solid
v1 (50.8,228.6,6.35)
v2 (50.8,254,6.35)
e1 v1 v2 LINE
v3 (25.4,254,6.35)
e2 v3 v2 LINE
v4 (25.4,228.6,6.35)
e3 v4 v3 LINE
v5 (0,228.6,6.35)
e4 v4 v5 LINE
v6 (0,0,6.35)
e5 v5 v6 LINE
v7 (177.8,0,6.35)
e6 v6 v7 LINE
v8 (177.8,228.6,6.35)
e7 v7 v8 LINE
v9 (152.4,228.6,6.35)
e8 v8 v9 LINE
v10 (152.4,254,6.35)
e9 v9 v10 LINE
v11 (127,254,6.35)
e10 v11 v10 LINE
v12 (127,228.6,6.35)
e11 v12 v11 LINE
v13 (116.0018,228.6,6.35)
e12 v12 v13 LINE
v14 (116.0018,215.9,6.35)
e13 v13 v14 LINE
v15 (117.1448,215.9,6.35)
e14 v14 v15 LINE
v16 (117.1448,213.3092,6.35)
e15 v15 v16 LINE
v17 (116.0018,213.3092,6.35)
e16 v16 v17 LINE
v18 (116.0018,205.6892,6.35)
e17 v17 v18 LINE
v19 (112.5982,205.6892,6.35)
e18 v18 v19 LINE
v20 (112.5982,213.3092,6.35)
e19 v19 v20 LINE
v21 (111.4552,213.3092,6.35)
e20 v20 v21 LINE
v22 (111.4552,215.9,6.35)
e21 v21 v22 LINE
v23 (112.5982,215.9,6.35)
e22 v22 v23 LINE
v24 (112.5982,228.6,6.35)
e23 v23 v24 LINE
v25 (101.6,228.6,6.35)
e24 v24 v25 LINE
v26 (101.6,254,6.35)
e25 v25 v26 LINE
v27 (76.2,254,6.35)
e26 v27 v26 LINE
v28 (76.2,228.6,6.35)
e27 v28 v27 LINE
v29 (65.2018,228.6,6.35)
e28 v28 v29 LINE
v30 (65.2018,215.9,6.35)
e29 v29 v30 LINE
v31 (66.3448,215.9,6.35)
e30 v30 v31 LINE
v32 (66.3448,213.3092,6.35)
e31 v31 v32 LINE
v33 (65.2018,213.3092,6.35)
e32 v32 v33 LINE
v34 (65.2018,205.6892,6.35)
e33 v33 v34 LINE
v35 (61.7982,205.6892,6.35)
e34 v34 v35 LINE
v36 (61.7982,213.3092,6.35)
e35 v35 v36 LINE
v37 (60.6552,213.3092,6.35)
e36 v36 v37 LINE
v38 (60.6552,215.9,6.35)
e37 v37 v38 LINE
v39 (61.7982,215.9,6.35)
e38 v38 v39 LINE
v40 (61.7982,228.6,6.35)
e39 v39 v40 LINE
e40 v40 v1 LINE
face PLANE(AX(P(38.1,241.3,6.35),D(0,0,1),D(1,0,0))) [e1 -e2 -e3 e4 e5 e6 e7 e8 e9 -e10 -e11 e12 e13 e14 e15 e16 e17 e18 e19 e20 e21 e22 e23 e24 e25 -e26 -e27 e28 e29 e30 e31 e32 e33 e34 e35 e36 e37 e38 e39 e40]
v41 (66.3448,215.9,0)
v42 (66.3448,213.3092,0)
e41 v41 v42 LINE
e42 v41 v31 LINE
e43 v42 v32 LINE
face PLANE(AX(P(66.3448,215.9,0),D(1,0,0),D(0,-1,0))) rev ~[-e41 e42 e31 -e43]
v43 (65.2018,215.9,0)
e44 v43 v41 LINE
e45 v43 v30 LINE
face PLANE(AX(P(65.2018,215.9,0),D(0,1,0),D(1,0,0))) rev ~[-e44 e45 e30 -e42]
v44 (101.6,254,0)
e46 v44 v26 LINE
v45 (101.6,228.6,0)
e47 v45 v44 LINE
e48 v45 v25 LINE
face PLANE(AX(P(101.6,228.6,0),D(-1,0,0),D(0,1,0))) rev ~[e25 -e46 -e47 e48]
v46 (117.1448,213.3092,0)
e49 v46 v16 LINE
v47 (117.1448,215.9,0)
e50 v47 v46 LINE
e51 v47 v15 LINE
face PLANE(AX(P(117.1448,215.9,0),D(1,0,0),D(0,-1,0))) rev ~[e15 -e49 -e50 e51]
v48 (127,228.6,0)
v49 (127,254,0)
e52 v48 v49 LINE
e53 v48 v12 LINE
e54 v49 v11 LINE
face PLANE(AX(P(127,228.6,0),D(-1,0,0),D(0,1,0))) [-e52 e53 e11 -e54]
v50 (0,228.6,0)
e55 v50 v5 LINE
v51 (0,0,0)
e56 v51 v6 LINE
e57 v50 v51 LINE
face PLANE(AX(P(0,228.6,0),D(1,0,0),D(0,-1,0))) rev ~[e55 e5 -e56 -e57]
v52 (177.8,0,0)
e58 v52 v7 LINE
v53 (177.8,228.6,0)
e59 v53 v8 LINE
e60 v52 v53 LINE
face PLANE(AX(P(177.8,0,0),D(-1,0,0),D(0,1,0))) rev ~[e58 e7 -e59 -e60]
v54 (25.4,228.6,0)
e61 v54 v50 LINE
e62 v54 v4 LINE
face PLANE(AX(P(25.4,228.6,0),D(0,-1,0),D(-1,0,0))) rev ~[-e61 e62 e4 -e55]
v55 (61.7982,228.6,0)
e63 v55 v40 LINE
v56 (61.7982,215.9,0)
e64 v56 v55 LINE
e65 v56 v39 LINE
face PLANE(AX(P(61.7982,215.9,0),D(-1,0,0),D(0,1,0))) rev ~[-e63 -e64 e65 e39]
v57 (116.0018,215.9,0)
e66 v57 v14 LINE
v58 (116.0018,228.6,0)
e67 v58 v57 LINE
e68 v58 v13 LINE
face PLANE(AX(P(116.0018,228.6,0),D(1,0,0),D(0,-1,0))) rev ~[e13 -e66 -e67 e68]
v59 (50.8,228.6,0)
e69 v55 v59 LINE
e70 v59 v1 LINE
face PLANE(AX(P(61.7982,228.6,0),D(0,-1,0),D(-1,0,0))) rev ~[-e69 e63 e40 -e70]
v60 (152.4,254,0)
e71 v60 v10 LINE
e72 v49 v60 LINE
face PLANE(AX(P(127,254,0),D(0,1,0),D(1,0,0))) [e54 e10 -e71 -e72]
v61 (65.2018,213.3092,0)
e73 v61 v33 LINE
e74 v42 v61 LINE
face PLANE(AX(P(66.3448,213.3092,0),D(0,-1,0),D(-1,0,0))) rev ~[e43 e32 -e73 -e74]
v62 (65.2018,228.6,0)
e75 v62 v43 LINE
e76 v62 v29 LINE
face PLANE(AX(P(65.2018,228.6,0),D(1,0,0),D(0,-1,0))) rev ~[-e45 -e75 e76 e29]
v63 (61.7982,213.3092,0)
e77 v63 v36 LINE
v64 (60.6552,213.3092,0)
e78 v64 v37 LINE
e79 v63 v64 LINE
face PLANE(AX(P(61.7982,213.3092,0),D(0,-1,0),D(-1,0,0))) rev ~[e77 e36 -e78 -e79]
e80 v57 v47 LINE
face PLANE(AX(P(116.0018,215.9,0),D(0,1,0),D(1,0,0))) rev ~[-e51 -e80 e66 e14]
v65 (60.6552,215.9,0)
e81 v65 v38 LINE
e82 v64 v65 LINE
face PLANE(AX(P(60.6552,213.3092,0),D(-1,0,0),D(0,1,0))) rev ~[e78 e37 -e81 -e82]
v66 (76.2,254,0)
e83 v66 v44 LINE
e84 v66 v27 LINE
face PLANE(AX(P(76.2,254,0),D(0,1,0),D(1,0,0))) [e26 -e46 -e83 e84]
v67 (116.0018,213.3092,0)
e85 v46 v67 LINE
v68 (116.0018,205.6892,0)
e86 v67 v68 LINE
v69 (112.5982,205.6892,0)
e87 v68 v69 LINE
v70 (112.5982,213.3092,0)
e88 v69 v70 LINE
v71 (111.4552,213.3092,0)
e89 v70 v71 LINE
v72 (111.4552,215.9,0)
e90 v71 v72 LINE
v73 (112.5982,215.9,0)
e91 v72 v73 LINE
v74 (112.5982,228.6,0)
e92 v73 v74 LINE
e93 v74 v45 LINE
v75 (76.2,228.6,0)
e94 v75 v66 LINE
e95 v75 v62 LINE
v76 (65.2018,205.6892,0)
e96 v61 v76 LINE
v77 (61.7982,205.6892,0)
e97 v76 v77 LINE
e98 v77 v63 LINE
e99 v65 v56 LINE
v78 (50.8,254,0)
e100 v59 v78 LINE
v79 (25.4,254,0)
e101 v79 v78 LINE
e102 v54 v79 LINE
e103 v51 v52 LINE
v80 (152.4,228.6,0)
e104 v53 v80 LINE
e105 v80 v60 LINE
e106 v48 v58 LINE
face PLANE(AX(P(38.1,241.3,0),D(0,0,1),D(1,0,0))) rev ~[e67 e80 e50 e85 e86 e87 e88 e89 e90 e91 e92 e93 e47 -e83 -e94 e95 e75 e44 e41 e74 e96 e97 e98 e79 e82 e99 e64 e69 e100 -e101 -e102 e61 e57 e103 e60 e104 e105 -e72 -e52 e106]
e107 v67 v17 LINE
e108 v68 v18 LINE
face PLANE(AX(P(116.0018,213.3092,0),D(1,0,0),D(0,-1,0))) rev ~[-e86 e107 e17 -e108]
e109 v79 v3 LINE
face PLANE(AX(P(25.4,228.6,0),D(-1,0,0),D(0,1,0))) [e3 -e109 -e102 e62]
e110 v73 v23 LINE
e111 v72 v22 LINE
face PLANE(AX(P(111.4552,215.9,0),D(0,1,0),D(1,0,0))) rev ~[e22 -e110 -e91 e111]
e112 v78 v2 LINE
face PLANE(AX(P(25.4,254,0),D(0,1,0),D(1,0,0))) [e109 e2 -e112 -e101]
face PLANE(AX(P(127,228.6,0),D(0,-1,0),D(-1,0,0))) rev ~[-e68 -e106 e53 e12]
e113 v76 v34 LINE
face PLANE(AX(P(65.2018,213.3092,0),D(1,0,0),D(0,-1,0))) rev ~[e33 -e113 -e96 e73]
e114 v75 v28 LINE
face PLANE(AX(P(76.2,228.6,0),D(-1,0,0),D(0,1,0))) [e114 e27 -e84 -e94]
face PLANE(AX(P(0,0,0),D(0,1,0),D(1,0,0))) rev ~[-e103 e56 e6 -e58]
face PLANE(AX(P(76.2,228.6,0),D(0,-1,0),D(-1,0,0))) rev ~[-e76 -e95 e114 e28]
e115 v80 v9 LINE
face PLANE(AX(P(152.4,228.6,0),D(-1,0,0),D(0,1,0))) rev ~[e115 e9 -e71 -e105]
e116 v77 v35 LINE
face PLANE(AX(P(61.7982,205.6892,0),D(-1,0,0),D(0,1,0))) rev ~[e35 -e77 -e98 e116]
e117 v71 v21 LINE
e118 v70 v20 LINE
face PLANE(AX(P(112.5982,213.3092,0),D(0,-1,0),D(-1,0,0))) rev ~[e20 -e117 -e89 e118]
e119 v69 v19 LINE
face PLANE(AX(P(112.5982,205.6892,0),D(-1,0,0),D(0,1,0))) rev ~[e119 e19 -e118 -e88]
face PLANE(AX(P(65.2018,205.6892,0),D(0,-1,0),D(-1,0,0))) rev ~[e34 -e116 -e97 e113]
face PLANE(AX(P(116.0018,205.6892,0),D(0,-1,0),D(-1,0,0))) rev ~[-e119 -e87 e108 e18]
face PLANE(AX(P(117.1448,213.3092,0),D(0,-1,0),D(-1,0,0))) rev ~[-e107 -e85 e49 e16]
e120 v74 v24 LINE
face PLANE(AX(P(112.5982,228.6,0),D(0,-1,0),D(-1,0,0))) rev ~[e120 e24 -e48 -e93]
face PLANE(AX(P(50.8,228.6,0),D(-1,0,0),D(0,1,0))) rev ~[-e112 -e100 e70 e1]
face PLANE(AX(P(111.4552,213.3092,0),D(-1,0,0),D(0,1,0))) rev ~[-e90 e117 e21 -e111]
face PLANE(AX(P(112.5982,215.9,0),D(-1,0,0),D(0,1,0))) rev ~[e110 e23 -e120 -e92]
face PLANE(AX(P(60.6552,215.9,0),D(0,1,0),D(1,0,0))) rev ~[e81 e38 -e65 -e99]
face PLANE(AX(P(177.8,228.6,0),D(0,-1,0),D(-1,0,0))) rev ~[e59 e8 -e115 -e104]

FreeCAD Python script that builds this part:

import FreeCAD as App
import Part
import Sketcher

V = App.Vector
Q = App.Units.Quantity


def add_polygon(sketch, points):
    """Adds a closed chain of lines whose ends are joined by coincident constraints."""
    first, n = sketch.GeometryCount, len(points)
    for a, b in zip(points, points[1:] + points[:1]):
        sketch.addGeometry(Part.LineSegment(App.Vector(*a, 0), App.Vector(*b, 0)), False)
    for i in range(n):
        sketch.addConstraint(Sketcher.Constraint("Coincident", first + i, 2, first + (i + 1) % n, 1))

doc = App.newDocument("Part")
body = doc.addObject("PartDesign::Body", "Body")

# Sketch on XY plane
sketch1 = doc.addObject("Sketcher::SketchObject", "Sketch")
body.addObject(sketch1)
sketch1.AttachmentSupport = (doc.XY_Plane, [""])
sketch1.MapMode = "FlatFace"
add_polygon(sketch1, [(25.4, 254), (25.4, 228.6), (0, 228.6), (0, 0), (177.8, 0), (177.8, 228.6), (152.4, 228.6), (152.4, 254), (127, 254), (127, 228.6), (116, 228.6), (116, 215.9), (117.1, 215.9), (117.1, 213.3), (116, 213.3), (116, 205.7), (112.6, 205.7), (112.6, 213.3), (111.5, 213.3), (111.5, 215.9), (112.6, 215.9), (112.6, 228.6), (101.6, 228.6), (101.6, 254), (76.2, 254), (76.2, 228.6), (65.2, 228.6), (65.2, 215.9), (66.3, 215.9), (66.3, 213.3), (65.2, 213.3), (65.2, 205.7), (61.8, 205.7), (61.8, 213.3), (60.7, 213.3), (60.7, 215.9), (61.8, 215.9), (61.8, 228.6), (50.8, 228.6), (50.8, 254)])  # lines 0-39
sketch1.addConstraint([
    Sketcher.Constraint("Vertical", 0),
    Sketcher.Constraint("Horizontal", 1),
    Sketcher.Constraint("Vertical", 2),
    Sketcher.Constraint("Horizontal", 3),
    Sketcher.Constraint("Vertical", 4),
    Sketcher.Constraint("Horizontal", 5),
    Sketcher.Constraint("Vertical", 6),
    Sketcher.Constraint("Horizontal", 7),
    Sketcher.Constraint("Vertical", 8),
    Sketcher.Constraint("Horizontal", 9),
    Sketcher.Constraint("Vertical", 10),
    Sketcher.Constraint("Horizontal", 11),
    Sketcher.Constraint("Vertical", 12),
    Sketcher.Constraint("Horizontal", 13),
    Sketcher.Constraint("Vertical", 14),
    Sketcher.Constraint("Horizontal", 15),
    Sketcher.Constraint("Vertical", 16),
    Sketcher.Constraint("Horizontal", 17),
    Sketcher.Constraint("Vertical", 18),
    Sketcher.Constraint("Horizontal", 19),
    Sketcher.Constraint("Vertical", 20),
    Sketcher.Constraint("Horizontal", 21),
    Sketcher.Constraint("Vertical", 22),
    Sketcher.Constraint("Horizontal", 23),
    Sketcher.Constraint("Vertical", 24),
    Sketcher.Constraint("Horizontal", 25),
    Sketcher.Constraint("Vertical", 26),
    Sketcher.Constraint("Horizontal", 27),
    Sketcher.Constraint("Vertical", 28),
    Sketcher.Constraint("Horizontal", 29),
    Sketcher.Constraint("Vertical", 30),
    Sketcher.Constraint("Horizontal", 31),
    Sketcher.Constraint("Vertical", 32),
    Sketcher.Constraint("Horizontal", 33),
    Sketcher.Constraint("Vertical", 34),
    Sketcher.Constraint("Horizontal", 35),
    Sketcher.Constraint("Vertical", 36),
    Sketcher.Constraint("Horizontal", 37),
    Sketcher.Constraint("Vertical", 38),
    Sketcher.Constraint("Horizontal", 39),
    Sketcher.Constraint("Coincident", 2, 2, -1, 1),
    Sketcher.Constraint("Horizontal", 1, 2, 4, 2),
    Sketcher.Constraint("Horizontal", 5, 2, 8, 2),
    Sketcher.Constraint("Horizontal", 13, 2, 16, 2),
    Sketcher.Constraint("Horizontal", 11, 2, 18, 2),
    Sketcher.Constraint("Horizontal", 9, 2, 20, 2),
    Sketcher.Constraint("Horizontal", 7, 2, 22, 2),
    Sketcher.Constraint("Horizontal", 21, 2, 24, 2),
    Sketcher.Constraint("Horizontal", 19, 2, 26, 2),
    Sketcher.Constraint("Horizontal", 17, 2, 28, 2),
    Sketcher.Constraint("Horizontal", 15, 2, 30, 2),
    Sketcher.Constraint("Horizontal", 29, 2, 32, 2),
    Sketcher.Constraint("Horizontal", 27, 2, 34, 2),
    Sketcher.Constraint("Horizontal", 25, 2, 36, 2),
    Sketcher.Constraint("Horizontal", 23, 2, 38, 2),
    Sketcher.Constraint("Vertical", 10, 2, 13, 2),
    Sketcher.Constraint("Vertical", 16, 2, 19, 2),
    Sketcher.Constraint("Vertical", 26, 2, 29, 2),
    Sketcher.Constraint("Vertical", 32, 2, 35, 2),
    Sketcher.Constraint("Equal", 1, 5),
    Sketcher.Constraint("Equal", 5, 7),
    Sketcher.Constraint("Equal", 13, 17),
    Sketcher.Constraint("Equal", 9, 21),
    Sketcher.Constraint("Equal", 7, 23),
    Sketcher.Constraint("Equal", 21, 25),
    Sketcher.Constraint("Equal", 19, 27),
    Sketcher.Constraint("Equal", 15, 31),
    Sketcher.Constraint("Equal", 29, 33),
    Sketcher.Constraint("Equal", 25, 37),
    Sketcher.Constraint("Equal", 23, 39),
    Sketcher.Constraint("Equal", 39, 0),
    Sketcher.Constraint("DistanceX", 1, 2, 1, 1, Q("1 in")),
    Sketcher.Constraint("DistanceX", 3, 1, 3, 2, Q("7 in")),
    Sketcher.Constraint("DistanceY", 2, 2, 2, 1, Q("9 in")),
    Sketcher.Constraint("DistanceY", 10, 2, 10, 1, Q("0.5 in")),
    Sketcher.Constraint("DistanceY", 14, 2, 14, 1, Q("0.3 in")),
    Sketcher.Constraint("DistanceX", 9, 2, 9, 1, Q("0.433 in")),
    Sketcher.Constraint("DistanceX", 11, 1, 11, 2, Q("0.045 in")),
    Sketcher.Constraint("DistanceY", 12, 2, 12, 1, Q("0.102 in")),
])
pad1 = doc.addObject("PartDesign::Pad", "Pad")
body.addObject(pad1)
pad1.Profile = sketch1
pad1.Length = Q("0.25 in")

doc.recompute()
